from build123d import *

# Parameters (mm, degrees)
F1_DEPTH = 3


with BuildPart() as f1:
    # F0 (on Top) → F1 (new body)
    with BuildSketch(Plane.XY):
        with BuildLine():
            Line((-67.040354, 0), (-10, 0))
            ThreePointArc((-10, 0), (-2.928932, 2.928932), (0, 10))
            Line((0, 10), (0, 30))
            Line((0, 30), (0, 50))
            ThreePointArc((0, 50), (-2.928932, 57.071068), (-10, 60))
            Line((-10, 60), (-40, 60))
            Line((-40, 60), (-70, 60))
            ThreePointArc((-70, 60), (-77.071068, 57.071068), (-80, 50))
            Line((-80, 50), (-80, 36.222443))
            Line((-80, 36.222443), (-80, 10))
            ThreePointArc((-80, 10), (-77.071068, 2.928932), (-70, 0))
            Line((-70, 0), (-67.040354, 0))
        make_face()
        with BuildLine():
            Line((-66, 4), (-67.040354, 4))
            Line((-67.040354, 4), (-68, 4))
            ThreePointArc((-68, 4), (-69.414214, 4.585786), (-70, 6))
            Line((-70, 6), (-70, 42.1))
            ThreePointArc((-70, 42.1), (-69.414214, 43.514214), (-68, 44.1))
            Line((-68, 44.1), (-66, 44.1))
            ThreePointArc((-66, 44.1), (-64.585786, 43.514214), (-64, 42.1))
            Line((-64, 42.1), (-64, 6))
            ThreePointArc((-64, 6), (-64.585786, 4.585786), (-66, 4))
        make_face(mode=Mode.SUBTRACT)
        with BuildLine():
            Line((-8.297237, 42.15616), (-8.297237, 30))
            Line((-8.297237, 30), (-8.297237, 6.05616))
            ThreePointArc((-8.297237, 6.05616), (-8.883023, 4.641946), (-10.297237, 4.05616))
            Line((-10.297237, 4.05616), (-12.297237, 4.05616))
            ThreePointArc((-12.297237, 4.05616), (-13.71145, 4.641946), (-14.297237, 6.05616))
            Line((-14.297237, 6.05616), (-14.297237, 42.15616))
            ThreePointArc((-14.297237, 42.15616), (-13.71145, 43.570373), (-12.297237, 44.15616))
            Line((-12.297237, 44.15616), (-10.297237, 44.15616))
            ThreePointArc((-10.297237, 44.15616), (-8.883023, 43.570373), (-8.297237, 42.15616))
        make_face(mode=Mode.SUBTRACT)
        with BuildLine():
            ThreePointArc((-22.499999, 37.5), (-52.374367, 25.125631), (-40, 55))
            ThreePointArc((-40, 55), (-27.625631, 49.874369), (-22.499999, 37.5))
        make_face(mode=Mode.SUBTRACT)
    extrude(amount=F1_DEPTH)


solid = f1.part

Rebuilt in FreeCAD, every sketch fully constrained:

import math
import FreeCAD as App
import Part
import Sketcher
from FreeCAD import Vector
Q = App.Units.Quantity

doc = App.newDocument("Part")
body = doc.addObject("PartDesign::Body", "Body")

# Sketch on XY plane
sketch1 = body.newObject("Sketcher::SketchObject", "Sketch")
sketch1.AttachmentSupport = (doc.getObject("XY_Plane"), [""])
sketch1.MapMode = "FlatFace"
sketch1.addGeometry(Part.ArcOfCircle(Part.Circle(Vector(-9.999999, 9.999999, 0), Vector(0, 0, 1), 9.999999), math.radians(-90.000004), math.radians(0.000004)), False)
sketch1.addGeometry(Part.LineSegment(Vector(0, 10, 0), Vector(0, 50, 0)), False)
sketch1.addGeometry(Part.ArcOfCircle(Part.Circle(Vector(-9.999999, 50.000001, 0), Vector(0, 0, 1), 9.999999), math.radians(-0.000004), math.radians(90.000004)), False)
sketch1.addGeometry(Part.LineSegment(Vector(-10, 60, 0), Vector(-70, 60, 0)), False)
sketch1.addGeometry(Part.ArcOfCircle(Part.Circle(Vector(-70.000001, 50.000001, 0), Vector(0, 0, 1), 9.999999), math.radians(89.999996), math.radians(180.000004)), False)
sketch1.addGeometry(Part.LineSegment(Vector(-80, 50, 0), Vector(-80, 10, 0)), False)
sketch1.addGeometry(Part.ArcOfCircle(Part.Circle(Vector(-70.000001, 9.999999, 0), Vector(0, 0, 1), 9.999999), math.radians(179.999996), math.radians(270.000004)), False)
sketch1.addGeometry(Part.LineSegment(Vector(-70, 0, 0), Vector(-10, 0, 0)), False)
sketch1.addGeometry(Part.ArcOfCircle(Part.Circle(Vector(-65.999999, 5.999999, 0), Vector(0, 0, 1), 1.999999), math.radians(-90.000043), math.radians(0.000043)), False)
sketch1.addGeometry(Part.LineSegment(Vector(-66, 4, 0), Vector(-68, 4, 0)), False)
sketch1.addGeometry(Part.ArcOfCircle(Part.Circle(Vector(-68.000001, 5.999999, 0), Vector(0, 0, 1), 1.999999), math.radians(179.999957), math.radians(270.000043)), False)
sketch1.addGeometry(Part.LineSegment(Vector(-70, 6, 0), Vector(-70, 42.1, 0)), False)
sketch1.addGeometry(Part.ArcOfCircle(Part.Circle(Vector(-68.000001, 42.100001, 0), Vector(0, 0, 1), 1.999999), math.radians(89.999957), math.radians(180.000043)), False)
sketch1.addGeometry(Part.LineSegment(Vector(-68, 44.1, 0), Vector(-66, 44.1, 0)), False)
sketch1.addGeometry(Part.ArcOfCircle(Part.Circle(Vector(-65.999999, 42.100001, 0), Vector(0, 0, 1), 1.999999), math.radians(-0.000043), math.radians(90.000043)), False)
sketch1.addGeometry(Part.LineSegment(Vector(-64, 42.1, 0), Vector(-64, 6, 0)), False)
sketch1.addGeometry(Part.ArcOfCircle(Part.Circle(Vector(-10.297237, 42.15616, 0), Vector(0, 0, 1), 2), math.radians(0.000006), math.radians(89.999994)), False)
sketch1.addGeometry(Part.LineSegment(Vector(-8.297237, 42.15616, 0), Vector(-8.297237, 6.05616, 0)), False)
sketch1.addGeometry(Part.ArcOfCircle(Part.Circle(Vector(-10.297236, 6.056159, 0), Vector(0, 0, 1), 1.999999), math.radians(-90.000043), math.radians(0.000043)), False)
sketch1.addGeometry(Part.LineSegment(Vector(-10.297237, 4.05616, 0), Vector(-12.297237, 4.05616, 0)), False)
sketch1.addGeometry(Part.ArcOfCircle(Part.Circle(Vector(-12.297237, 6.05616, 0), Vector(0, 0, 1), 2), math.radians(-179.999994), math.radians(-90.000006)), False)
sketch1.addGeometry(Part.LineSegment(Vector(-14.297237, 6.05616, 0), Vector(-14.297237, 42.15616, 0)), False)
sketch1.addGeometry(Part.ArcOfCircle(Part.Circle(Vector(-12.297235, 42.156158, 0), Vector(0, 0, 1), 2.000002), math.radians(90.000055), math.radians(179.999945)), False)
sketch1.addGeometry(Part.LineSegment(Vector(-12.297237, 44.15616, 0), Vector(-10.297237, 44.15616, 0)), False)
sketch1.addGeometry(Part.ArcOfCircle(Part.Circle(Vector(-40, 37.499999, 0), Vector(0, 0, 1), 17.500001), math.radians(0.000002), math.radians(90.000001)), False)
sketch1.addGeometry(Part.ArcOfCircle(Part.Circle(Vector(-39.999999, 37.5, 0), Vector(0, 0, 1), 17.5), math.radians(90.000004), math.radians(360)), False)
sketch1.addConstraint(Sketcher.Constraint("Tangent", 0, 2, 1, 1))
sketch1.addConstraint(Sketcher.Constraint("Tangent", 1, 2, 2, 1))
sketch1.addConstraint(Sketcher.Constraint("Tangent", 2, 2, 3, 1))
sketch1.addConstraint(Sketcher.Constraint("Tangent", 3, 2, 4, 1))
sketch1.addConstraint(Sketcher.Constraint("Tangent", 4, 2, 5, 1))
sketch1.addConstraint(Sketcher.Constraint("Tangent", 5, 2, 6, 1))
sketch1.addConstraint(Sketcher.Constraint("Tangent", 6, 2, 7, 1))
sketch1.addConstraint(Sketcher.Constraint("Tangent", 7, 2, 0, 1))
sketch1.addConstraint(Sketcher.Constraint("Tangent", 8, 1, 9, 1))
sketch1.addConstraint(Sketcher.Constraint("Tangent", 9, 2, 10, 2))
sketch1.addConstraint(Sketcher.Constraint("Tangent", 10, 1, 11, 1))
sketch1.addConstraint(Sketcher.Constraint("Tangent", 11, 2, 12, 2))
sketch1.addConstraint(Sketcher.Constraint("Tangent", 12, 1, 13, 1))
sketch1.addConstraint(Sketcher.Constraint("Tangent", 13, 2, 14, 2))
sketch1.addConstraint(Sketcher.Constraint("Tangent", 14, 1, 15, 1))
sketch1.addConstraint(Sketcher.Constraint("Tangent", 15, 2, 8, 2))
sketch1.addConstraint(Sketcher.Constraint("Tangent", 16, 1, 17, 1))
sketch1.addConstraint(Sketcher.Constraint("Tangent", 17, 2, 18, 2))
sketch1.addConstraint(Sketcher.Constraint("Tangent", 18, 1, 19, 1))
sketch1.addConstraint(Sketcher.Constraint("Tangent", 19, 2, 20, 2))
sketch1.addConstraint(Sketcher.Constraint("Tangent", 20, 1, 21, 1))
sketch1.addConstraint(Sketcher.Constraint("Tangent", 21, 2, 22, 2))
sketch1.addConstraint(Sketcher.Constraint("Tangent", 22, 1, 23, 1))
sketch1.addConstraint(Sketcher.Constraint("Tangent", 23, 2, 16, 2))
sketch1.addConstraint(Sketcher.Constraint("Tangent", 24, 1, 25, 2))
sketch1.addConstraint(Sketcher.Constraint("Coincident", 25, 1, 24, 2))
sketch1.addConstraint(Sketcher.Constraint("Vertical", 1))
sketch1.addConstraint(Sketcher.Constraint("Horizontal", 3))
sketch1.addConstraint(Sketcher.Constraint("Vertical", 5))
sketch1.addConstraint(Sketcher.Constraint("Horizontal", 7))
sketch1.addConstraint(Sketcher.Constraint("Horizontal", 9))
sketch1.addConstraint(Sketcher.Constraint("Vertical", 11))
sketch1.addConstraint(Sketcher.Constraint("Horizontal", 13))
sketch1.addConstraint(Sketcher.Constraint("Vertical", 15))
sketch1.addConstraint(Sketcher.Constraint("Vertical", 17))
sketch1.addConstraint(Sketcher.Constraint("Horizontal", 19))
sketch1.addConstraint(Sketcher.Constraint("Vertical", 21))
sketch1.addConstraint(Sketcher.Constraint("Horizontal", 23))
sketch1.addConstraint(Sketcher.Constraint("Equal", 0, 2))
sketch1.addConstraint(Sketcher.Constraint("Equal", 2, 4))
sketch1.addConstraint(Sketcher.Constraint("Equal", 4, 6))
sketch1.addConstraint(Sketcher.Constraint("Equal", 8, 10))
sketch1.addConstraint(Sketcher.Constraint("Equal", 10, 12))
sketch1.addConstraint(Sketcher.Constraint("Equal", 12, 14))
sketch1.addConstraint(Sketcher.Constraint("Equal", 14, 16))
sketch1.addConstraint(Sketcher.Constraint("Equal", 16, 18))
sketch1.addConstraint(Sketcher.Constraint("Equal", 18, 20))
sketch1.addConstraint(Sketcher.Constraint("Equal", 20, 22))
sketch1.addConstraint(Sketcher.Constraint("PointOnObject", 0, 2, -2))
sketch1.addConstraint(Sketcher.Constraint("PointOnObject", 6, 2, -1))
sketch1.addConstraint(Sketcher.Constraint("Horizontal", 25, 3, 24, 1))
sketch1.addConstraint(Sketcher.Constraint("Vertical", 6, 2, 10, 1))
sketch1.addConstraint(Sketcher.Constraint("Vertical", 24, 3, 25, 1))
sketch1.addConstraint(Sketcher.Constraint("Equal", 13, 19))
sketch1.addConstraint(Sketcher.Constraint("Equal", 15, 17))
sketch1.addConstraint(Sketcher.Constraint("Radius", 0, Q("9.999999 mm")))
sketch1.addConstraint(Sketcher.Constraint("Radius", 8, Q("1.999999 mm")))
sketch1.addConstraint(Sketcher.Constraint("Radius", 24, Q("17.500001 mm")))
sketch1.addConstraint(Sketcher.Constraint("DistanceX", 3, 2, 3, 1, Q("60 mm")))
sketch1.addConstraint(Sketcher.Constraint("DistanceX", 9, 2, 9, 1, Q("2 mm")))
sketch1.addConstraint(Sketcher.Constraint("DistanceY", 1, 1, 1, 2, Q("40 mm")))
sketch1.addConstraint(Sketcher.Constraint("DistanceY", 11, 1, 11, 2, Q("36.1 mm")))
sketch1.addConstraint(Sketcher.Constraint("DistanceY", -1, 1, 8, 3, Q("5.999999 mm")))
sketch1.addConstraint(Sketcher.Constraint("DistanceX", 24, 3, -1, 1, Q("40 mm")))
sketch1.addConstraint(Sketcher.Constraint("DistanceY", -1, 1, 25, 1, Q("55 mm")))
sketch1.addConstraint(Sketcher.Constraint("DistanceY", -1, 1, 16, 3, Q("42.15616 mm")))
sketch1.addConstraint(Sketcher.Constraint("DistanceX", 14, 3, 16, 3, Q("55.702761 mm")))
pad1 = body.newObject("PartDesign::Pad", "Pad")
pad1.Profile = sketch1
pad1.Length = 3

doc.recompute()
